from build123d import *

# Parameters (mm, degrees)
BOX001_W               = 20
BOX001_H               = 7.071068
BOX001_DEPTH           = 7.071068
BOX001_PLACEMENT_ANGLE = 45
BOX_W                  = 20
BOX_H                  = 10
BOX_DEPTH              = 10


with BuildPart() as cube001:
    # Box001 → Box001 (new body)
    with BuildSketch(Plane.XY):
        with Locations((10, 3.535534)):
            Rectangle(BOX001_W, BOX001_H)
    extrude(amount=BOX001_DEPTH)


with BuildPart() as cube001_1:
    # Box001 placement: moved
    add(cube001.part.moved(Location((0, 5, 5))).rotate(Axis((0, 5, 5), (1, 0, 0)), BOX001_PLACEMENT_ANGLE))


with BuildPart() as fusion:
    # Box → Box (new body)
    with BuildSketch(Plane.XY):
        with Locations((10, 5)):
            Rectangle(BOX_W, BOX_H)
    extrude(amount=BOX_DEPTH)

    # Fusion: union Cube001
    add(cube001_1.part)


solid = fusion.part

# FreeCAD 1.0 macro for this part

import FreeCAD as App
import Part
import Sketcher

V = App.Vector
Q = App.Units.Quantity

doc = App.newDocument("Part")
body = doc.addObject("PartDesign::Body", "Body")

sketch1 = body.newObject("Sketcher::SketchObject", "Sketch")
sketch1.AttachmentSupport = (doc.getObject("XY_Plane"), [""])
sketch1.MapMode = "FlatFace"
sketch1.addGeometry([
    Part.LineSegment(V(0, 7.071068, 0), V(0, 0, 0)),
    Part.LineSegment(V(0, 0, 0), V(20, 0, 0)),
    Part.LineSegment(V(20, 0, 0), V(20, 7.071068, 0)),
    Part.LineSegment(V(20, 7.071068, 0), V(0, 7.071068, 0)),
], False)
sketch1.addConstraint([
    Sketcher.Constraint("Coincident", 0, 2, 1, 1),
    Sketcher.Constraint("Coincident", 1, 2, 2, 1),
    Sketcher.Constraint("Coincident", 2, 2, 3, 1),
    Sketcher.Constraint("Coincident", 3, 2, 0, 1),
    Sketcher.Constraint("Vertical", 0),
    Sketcher.Constraint("Horizontal", 1),
    Sketcher.Constraint("Vertical", 2),
    Sketcher.Constraint("Horizontal", 3),
    Sketcher.Constraint("Coincident", 0, 2, -1, 1),
    Sketcher.Constraint("DistanceX", 1, 1, 1, 2, Q("20 mm")),
    Sketcher.Constraint("DistanceY", 0, 2, 0, 1, Q("7.071068 mm")),
])
pad1 = body.newObject("PartDesign::Pad", "Pad")
pad1.Profile = sketch1
pad1.Length = 7.071068
body2 = doc.addObject("PartDesign::Body", "Body001")
doc.recompute()

body.Placement = App.Placement(V(0, 5, 5), App.Rotation(V(1, 0, 0), 45))
boolean = body2.newObject("PartDesign::Boolean", "Boolean")
boolean.Type = "Fuse"
boolean.addObjects([body])
body3 = doc.addObject("PartDesign::Body", "Body002")

sketch2 = body3.newObject("Sketcher::SketchObject", "Sketch001")
sketch2.AttachmentSupport = (doc.getObject("XY_Plane002"), [""])
sketch2.MapMode = "FlatFace"
sketch2.addGeometry([
    Part.LineSegment(V(0, 10, 0), V(0, 0, 0)),
    Part.LineSegment(V(0, 0, 0), V(20, 0, 0)),
    Part.LineSegment(V(20, 0, 0), V(20, 10, 0)),
    Part.LineSegment(V(20, 10, 0), V(0, 10, 0)),
], False)
sketch2.addConstraint([
    Sketcher.Constraint("Coincident", 0, 2, 1, 1),
    Sketcher.Constraint("Coincident", 1, 2, 2, 1),
    Sketcher.Constraint("Coincident", 2, 2, 3, 1),
    Sketcher.Constraint("Coincident", 3, 2, 0, 1),
    Sketcher.Constraint("Vertical", 0),
    Sketcher.Constraint("Horizontal", 1),
    Sketcher.Constraint("Vertical", 2),
    Sketcher.Constraint("Horizontal", 3),
    Sketcher.Constraint("Coincident", 0, 2, -1, 1),
    Sketcher.Constraint("DistanceX", 1, 1, 1, 2, Q("20 mm")),
    Sketcher.Constraint("DistanceY", 0, 2, 0, 1, Q("10 mm")),
])
pad2 = body3.newObject("PartDesign::Pad", "Pad001")
pad2.Profile = sketch2
pad2.Length = 10
doc.recompute()

boolean2 = body3.newObject("PartDesign::Boolean", "Boolean001")
boolean2.Type = "Fuse"
boolean2.addObjects([body2])

doc.recompute()
